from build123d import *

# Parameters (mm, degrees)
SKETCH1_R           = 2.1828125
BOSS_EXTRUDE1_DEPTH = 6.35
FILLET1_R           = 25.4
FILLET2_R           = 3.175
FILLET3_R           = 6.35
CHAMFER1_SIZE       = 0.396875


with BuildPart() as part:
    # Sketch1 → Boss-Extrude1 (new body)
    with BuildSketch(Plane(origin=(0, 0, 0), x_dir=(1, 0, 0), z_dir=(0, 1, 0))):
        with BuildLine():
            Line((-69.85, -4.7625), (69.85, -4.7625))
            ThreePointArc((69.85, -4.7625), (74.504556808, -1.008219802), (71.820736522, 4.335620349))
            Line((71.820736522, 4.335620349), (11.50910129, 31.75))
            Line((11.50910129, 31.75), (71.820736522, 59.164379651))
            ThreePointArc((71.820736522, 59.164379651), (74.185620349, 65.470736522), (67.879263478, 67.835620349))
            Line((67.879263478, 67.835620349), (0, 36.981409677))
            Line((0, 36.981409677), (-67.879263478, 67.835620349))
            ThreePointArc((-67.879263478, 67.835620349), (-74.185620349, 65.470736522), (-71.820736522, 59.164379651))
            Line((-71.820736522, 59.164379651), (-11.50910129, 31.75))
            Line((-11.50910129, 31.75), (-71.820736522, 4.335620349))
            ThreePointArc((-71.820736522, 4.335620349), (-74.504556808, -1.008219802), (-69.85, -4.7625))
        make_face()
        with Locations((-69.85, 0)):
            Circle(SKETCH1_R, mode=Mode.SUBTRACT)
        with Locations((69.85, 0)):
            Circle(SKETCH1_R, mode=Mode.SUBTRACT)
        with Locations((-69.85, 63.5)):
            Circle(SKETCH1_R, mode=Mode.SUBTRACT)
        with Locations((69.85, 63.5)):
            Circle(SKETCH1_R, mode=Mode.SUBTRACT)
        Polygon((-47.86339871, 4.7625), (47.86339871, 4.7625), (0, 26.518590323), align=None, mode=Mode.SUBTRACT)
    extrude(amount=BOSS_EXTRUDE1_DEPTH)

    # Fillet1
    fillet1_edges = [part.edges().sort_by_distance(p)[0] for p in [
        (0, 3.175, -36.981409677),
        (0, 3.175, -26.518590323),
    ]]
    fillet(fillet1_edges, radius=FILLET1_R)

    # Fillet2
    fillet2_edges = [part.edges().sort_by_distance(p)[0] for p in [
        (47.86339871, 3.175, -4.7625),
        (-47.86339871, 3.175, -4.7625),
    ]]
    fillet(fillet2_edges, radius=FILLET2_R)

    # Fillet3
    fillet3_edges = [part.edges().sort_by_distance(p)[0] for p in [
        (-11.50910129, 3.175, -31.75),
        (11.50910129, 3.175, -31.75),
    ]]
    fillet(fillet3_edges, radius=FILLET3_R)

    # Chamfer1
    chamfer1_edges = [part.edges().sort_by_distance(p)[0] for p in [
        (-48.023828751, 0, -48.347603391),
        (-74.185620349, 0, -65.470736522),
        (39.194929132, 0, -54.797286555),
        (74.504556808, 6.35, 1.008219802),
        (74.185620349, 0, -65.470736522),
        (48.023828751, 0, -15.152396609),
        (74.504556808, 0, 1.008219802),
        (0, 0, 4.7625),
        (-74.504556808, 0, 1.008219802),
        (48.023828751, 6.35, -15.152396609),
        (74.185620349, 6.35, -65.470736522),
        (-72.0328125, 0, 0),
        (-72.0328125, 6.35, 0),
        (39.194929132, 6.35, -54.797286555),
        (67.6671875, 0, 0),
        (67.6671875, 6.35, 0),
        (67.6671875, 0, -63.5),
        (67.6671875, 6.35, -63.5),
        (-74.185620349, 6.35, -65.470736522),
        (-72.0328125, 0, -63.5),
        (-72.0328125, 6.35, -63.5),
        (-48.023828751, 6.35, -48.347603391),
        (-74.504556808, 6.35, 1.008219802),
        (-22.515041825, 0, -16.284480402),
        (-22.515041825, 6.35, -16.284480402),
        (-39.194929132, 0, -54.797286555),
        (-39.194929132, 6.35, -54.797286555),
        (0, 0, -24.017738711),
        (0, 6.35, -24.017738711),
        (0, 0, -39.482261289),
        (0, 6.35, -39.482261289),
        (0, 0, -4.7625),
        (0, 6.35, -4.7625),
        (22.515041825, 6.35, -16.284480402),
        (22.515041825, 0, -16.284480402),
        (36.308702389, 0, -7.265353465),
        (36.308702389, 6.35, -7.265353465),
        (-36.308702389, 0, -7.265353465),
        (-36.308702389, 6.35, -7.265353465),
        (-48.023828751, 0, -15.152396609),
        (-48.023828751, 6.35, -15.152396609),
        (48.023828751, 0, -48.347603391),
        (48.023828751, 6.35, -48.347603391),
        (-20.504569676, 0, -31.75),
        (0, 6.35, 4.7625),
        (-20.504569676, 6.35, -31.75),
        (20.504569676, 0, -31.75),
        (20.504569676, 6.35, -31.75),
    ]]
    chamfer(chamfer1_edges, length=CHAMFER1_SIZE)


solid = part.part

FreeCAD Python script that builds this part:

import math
import FreeCAD as App
import Part
import Sketcher
from FreeCAD import Vector
Q = App.Units.Quantity


def edges_at(feature, points):
    """Names of the edges that pass closest to the given points."""
    edges = feature.Shape.Edges
    near = lambda p: min(range(len(edges)), key=lambda i: edges[i].distToShape(Part.Vertex(*p))[0])
    return sorted({f"Edge{near(p) + 1}" for p in points})


def add_polygon(sketch, points):
    """Adds a closed chain of lines whose ends are joined by coincident constraints."""
    first, n = sketch.GeometryCount, len(points)
    for a, b in zip(points, points[1:] + points[:1]):
        sketch.addGeometry(Part.LineSegment(App.Vector(*a, 0), App.Vector(*b, 0)), False)
    for i in range(n):
        sketch.addConstraint(Sketcher.Constraint("Coincident", first + i, 2, first + (i + 1) % n, 1))

doc = App.newDocument("Part")
params = doc.addObject("Spreadsheet::Sheet", "Params")
for row, (alias, value) in enumerate([
    ("sketch1_diameter", "0.171875 in"),
    ("sketch1_width", "5.5 in"),
    ("sketch1_radius", "0.1875 in"),
    ("pad1_length", "0.25 in"),
    ("fillet_radius", "1 in"),
    ("fillet2_radius", "0.125 in"),
    ("fillet3_radius", "0.25 in"),
    ("chamfer_size", "0.015625 in"),
], start=1):
    params.set(f"A{row}", alias)
    params.set(f"B{row}", "=" + value)
    params.setAlias(f"B{row}", alias)

body = doc.addObject("PartDesign::Body", "Body")

# Sketch on XZ plane
sketch1 = body.newObject("Sketcher::SketchObject", "Sketch")
sketch1.AttachmentSupport = (doc.getObject("XZ_Plane"), [""])
sketch1.MapMode = "FlatFace"
sketch1.addGeometry(Part.LineSegment(Vector(-69.8, 4.8, 0), Vector(69.8, 4.8, 0)), False)  # 0
sketch1.addGeometry(Part.ArcOfCircle(Part.Circle(Vector(69.8, 0, 0), Vector(0, 0, 1), 4.8), math.radians(-66), math.radians(90)), False)  # 1
sketch1.addGeometry(Part.LineSegment(Vector(71.8, -4.3, 0), Vector(11.5, -31.8, 0)), False)  # 2
sketch1.addGeometry(Part.LineSegment(Vector(11.5, -31.8, 0), Vector(71.8, -59.2, 0)), False)  # 3
sketch1.addGeometry(Part.ArcOfCircle(Part.Circle(Vector(69.8, -63.5, 0), Vector(0, 0, 1), 4.8), math.radians(-114), math.radians(66)), False)  # 4
sketch1.addGeometry(Part.LineSegment(Vector(67.9, -67.8, 0), Vector(0, -37, 0)), False)  # 5
sketch1.addGeometry(Part.LineSegment(Vector(0, -37, 0), Vector(-67.9, -67.8, 0)), False)  # 6
sketch1.addGeometry(Part.ArcOfCircle(Part.Circle(Vector(-69.8, -63.5, 0), Vector(0, 0, 1), 4.8), math.radians(114), math.radians(294)), False)  # 7
sketch1.addGeometry(Part.LineSegment(Vector(-71.8, -59.2, 0), Vector(-11.5, -31.8, 0)), False)  # 8
sketch1.addGeometry(Part.LineSegment(Vector(-11.5, -31.8, 0), Vector(-71.8, -4.3, 0)), False)  # 9
sketch1.addGeometry(Part.ArcOfCircle(Part.Circle(Vector(-69.8, 0, 0), Vector(0, 0, 1), 4.8), math.radians(90), math.radians(246)), False)  # 10
sketch1.addGeometry(Part.Circle(Vector(-69.8, 0, 0), Vector(0, 0, 1), 2.2), False)  # 11
sketch1.addGeometry(Part.Circle(Vector(69.8, 0, 0), Vector(0, 0, 1), 2.2), False)  # 12
add_polygon(sketch1, [(47.9, -4.8), (-47.9, -4.8), (0, -26.5)])  # lines 13-15
sketch1.addGeometry(Part.Circle(Vector(-69.8, -63.5, 0), Vector(0, 0, 1), 2.2), False)  # 16
sketch1.addGeometry(Part.Circle(Vector(69.8, -63.5, 0), Vector(0, 0, 1), 2.2), False)  # 17
sketch1.addConstraint(Sketcher.Constraint("Tangent", 0, 2, 1, 2))
sketch1.addConstraint(Sketcher.Constraint("Tangent", 1, 1, 2, 1))
sketch1.addConstraint(Sketcher.Constraint("Coincident", 2, 2, 3, 1))
sketch1.addConstraint(Sketcher.Constraint("Tangent", 3, 2, 4, 2))
sketch1.addConstraint(Sketcher.Constraint("Tangent", 4, 1, 5, 1))
sketch1.addConstraint(Sketcher.Constraint("Coincident", 5, 2, 6, 1))
sketch1.addConstraint(Sketcher.Constraint("Tangent", 6, 2, 7, 2))
sketch1.addConstraint(Sketcher.Constraint("Tangent", 7, 1, 8, 1))
sketch1.addConstraint(Sketcher.Constraint("Coincident", 8, 2, 9, 1))
sketch1.addConstraint(Sketcher.Constraint("Tangent", 9, 2, 10, 2))
sketch1.addConstraint(Sketcher.Constraint("Tangent", 10, 1, 0, 1))
sketch1.addConstraint(Sketcher.Constraint("Horizontal", 0))
sketch1.addConstraint(Sketcher.Constraint("Horizontal", 13))
sketch1.addConstraint(Sketcher.Constraint("Coincident", 11, 3, 10, 3))
sketch1.addConstraint(Sketcher.Constraint("Coincident", 12, 3, 1, 3))
sketch1.addConstraint(Sketcher.Constraint("Coincident", 16, 3, 7, 3))
sketch1.addConstraint(Sketcher.Constraint("Coincident", 17, 3, 4, 3))
sketch1.addConstraint(Sketcher.Constraint("Equal", 1, 4))
sketch1.addConstraint(Sketcher.Constraint("Equal", 4, 7))
sketch1.addConstraint(Sketcher.Constraint("Equal", 7, 10))
sketch1.addConstraint(Sketcher.Constraint("Equal", 11, 12))
sketch1.addConstraint(Sketcher.Constraint("Equal", 12, 16))
sketch1.addConstraint(Sketcher.Constraint("Equal", 16, 17))
sketch1.addConstraint(Sketcher.Constraint("Symmetric", 1, 3, 10, 3, -1, 1))
sketch1.addConstraint(Sketcher.Constraint("Symmetric", 4, 3, 7, 3, -2))
sketch1.addConstraint(Sketcher.Constraint("Symmetric", 2, 2, 8, 2, -2))
sketch1.addConstraint(Sketcher.Constraint("PointOnObject", 5, 2, -2))
sketch1.addConstraint(Sketcher.Constraint("PointOnObject", 14, 2, -2))
sketch1.addConstraint(Sketcher.Constraint("Parallel", 3, 5))
sketch1.addConstraint(Sketcher.Constraint("Parallel", 2, 6))
sketch1.addConstraint(Sketcher.Constraint("Parallel", 9, 14))
sketch1.addConstraint(Sketcher.Constraint("Parallel", 8, 15))
sketch1.addConstraint(Sketcher.Constraint("Vertical", 1, 3, 4, 3))
sketch1.addConstraint(Sketcher.Constraint("Diameter", 11, Q("0.171875 in")))
sketch1.addConstraint(Sketcher.Constraint("DistanceX", 0, 1, 0, 2, Q("5.5 in")))
sketch1.addConstraint(Sketcher.Constraint("Radius", 1, Q("0.1875 in")))
sketch1.addConstraint(Sketcher.Constraint("DistanceY", 4, 3, -1, 1, Q("2.5 in")))
sketch1.addConstraint(Sketcher.Constraint("DistanceY", 13, 2, -1, 1, Q("0.1875 in")))
sketch1.addConstraint(Sketcher.Constraint("DistanceX", -1, 1, 2, 2, Q("11.509101 mm")))
sketch1.addConstraint(Sketcher.Constraint("DistanceX", 13, 2, -1, 1, Q("47.863399 mm")))
sketch1.setExpression("Constraints[36]", "Params.sketch1_diameter")
sketch1.setExpression("Constraints[37]", "Params.sketch1_width")
sketch1.setExpression("Constraints[38]", "Params.sketch1_radius")
pad1 = body.newObject("PartDesign::Pad", "Pad")
pad1.Profile = sketch1
pad1.setExpression("Length", "Params.pad1_length")
pad1.Reversed = True
doc.recompute()

fillet = body.newObject("PartDesign::Fillet", "Fillet")
fillet.Base = (pad1, edges_at(pad1, [(0, 3.175, -36.981), (0, 3.175, -26.519)]))
fillet.setExpression("Radius", "Params.fillet_radius")
doc.recompute()

fillet2 = body.newObject("PartDesign::Fillet", "Fillet001")
fillet2.Base = (fillet, edges_at(fillet, [(47.863, 3.175, -4.763), (-47.863, 3.175, -4.763)]))
fillet2.setExpression("Radius", "Params.fillet2_radius")
doc.recompute()

fillet3 = body.newObject("PartDesign::Fillet", "Fillet002")
fillet3.Base = (fillet2, edges_at(fillet2, [(-11.509, 3.175, -31.75), (11.509, 3.175, -31.75)]))
fillet3.setExpression("Radius", "Params.fillet3_radius")
doc.recompute()

chamfer = body.newObject("PartDesign::Chamfer", "Chamfer")
chamfer.Base = (fillet3, edges_at(fillet3, [
    (-48.024, 0, -48.348),
    (-74.186, 0, -65.471),
    (39.195, 0, -54.797),
    (74.505, 6.35, 1.008),
    (74.186, 0, -65.471),
    (48.024, 0, -15.152),
    (74.505, 0, 1.008),
    (0, 0, 4.763),
    (-74.505, 0, 1.008),
    (48.024, 6.35, -15.152),
    (74.186, 6.35, -65.471),
    (-72.033, 0, 0),
    (-72.033, 6.35, 0),
    (39.195, 6.35, -54.797),
    (67.667, 0, 0),
    (67.667, 6.35, 0),
    (67.667, 0, -63.5),
    (67.667, 6.35, -63.5),
    (-74.186, 6.35, -65.471),
    (-72.033, 0, -63.5),
    (-72.033, 6.35, -63.5),
    (-48.024, 6.35, -48.348),
    (-74.505, 6.35, 1.008),
    (-22.515, 0, -16.284),
    (-22.515, 6.35, -16.284),
    (-39.195, 0, -54.797),
    (-39.195, 6.35, -54.797),
    (0, 0, -24.018),
    (0, 6.35, -24.018),
    (0, 0, -39.482),
    (0, 6.35, -39.482),
    (0, 0, -4.763),
    (0, 6.35, -4.763),
    (22.515, 6.35, -16.284),
    (22.515, 0, -16.284),
    (36.309, 0, -7.265),
    (36.309, 6.35, -7.265),
    (-36.309, 0, -7.265),
    (-36.309, 6.35, -7.265),
    (-48.024, 0, -15.152),
    (-48.024, 6.35, -15.152),
    (48.024, 0, -48.348),
    (48.024, 6.35, -48.348),
    (-20.505, 0, -31.75),
    (0, 6.35, 4.763),
    (-20.505, 6.35, -31.75),
    (20.505, 0, -31.75),
    (20.505, 6.35, -31.75),
]))
chamfer.setExpression("Size", "Params.chamfer_size")

doc.recompute()
